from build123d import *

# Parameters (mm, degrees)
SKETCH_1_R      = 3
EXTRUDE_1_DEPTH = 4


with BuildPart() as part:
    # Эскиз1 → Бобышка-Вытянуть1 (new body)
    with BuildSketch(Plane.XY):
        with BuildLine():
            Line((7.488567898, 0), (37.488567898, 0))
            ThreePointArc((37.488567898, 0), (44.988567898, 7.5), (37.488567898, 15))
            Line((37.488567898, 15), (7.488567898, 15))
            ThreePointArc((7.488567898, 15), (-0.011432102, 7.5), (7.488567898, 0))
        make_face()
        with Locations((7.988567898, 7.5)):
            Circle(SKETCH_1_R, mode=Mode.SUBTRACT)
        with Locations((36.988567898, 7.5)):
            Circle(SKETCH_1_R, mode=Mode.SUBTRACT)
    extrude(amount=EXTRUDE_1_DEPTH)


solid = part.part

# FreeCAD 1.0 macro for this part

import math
import FreeCAD as App
import Part
import Sketcher

V = App.Vector
Q = App.Units.Quantity

doc = App.newDocument("Part")
body = doc.addObject("PartDesign::Body", "Body")

# Sketch on XY plane
sketch1 = body.newObject("Sketcher::SketchObject", "Sketch")
sketch1.AttachmentSupport = (doc.getObject("XY_Plane"), [""])
sketch1.MapMode = "FlatFace"
sketch1.addGeometry([
    Part.LineSegment(V(7.488568, 0, 0), V(37.488568, 0, 0)),  # 0
    Part.ArcOfCircle(Part.Circle(V(37.488568, 7.5, 0), V(0, 0, 1), 7.5), math.radians(-90), math.radians(90)),  # 1
    Part.LineSegment(V(37.488568, 15, 0), V(7.488568, 15, 0)),  # 2
    Part.ArcOfCircle(Part.Circle(V(7.488568, 7.5, 0), V(0, 0, 1), 7.5), math.radians(90), math.radians(270)),  # 3
    Part.Circle(V(7.988568, 7.5, 0), V(0, 0, 1), 3),  # 4
    Part.Circle(V(36.988568, 7.5, 0), V(0, 0, 1), 3),  # 5
], False)
sketch1.addConstraint([
    Sketcher.Constraint("Tangent", 0, 2, 1, 1),
    Sketcher.Constraint("Tangent", 1, 2, 2, 1),
    Sketcher.Constraint("Tangent", 2, 2, 3, 1),
    Sketcher.Constraint("Tangent", 3, 2, 0, 1),
    Sketcher.Constraint("Horizontal", 0),
    Sketcher.Constraint("Horizontal", 2),
    Sketcher.Constraint("Equal", 4, 5),
    Sketcher.Constraint("PointOnObject", 0, 2, -1),
    Sketcher.Constraint("Horizontal", 3, 3, 4, 3),
    Sketcher.Constraint("Horizontal", 4, 3, 5, 3),
    Sketcher.Constraint("Diameter", 4, Q("6 mm")),
    Sketcher.Constraint("Radius", 1, Q("7.5 mm")),
    Sketcher.Constraint("DistanceX", 0, 1, 0, 2, Q("30 mm")),
    Sketcher.Constraint("DistanceX", 4, 3, 5, 3, Q("29 mm")),
    Sketcher.Constraint("DistanceX", 3, 3, 4, 3, Q("0.5 mm")),
    Sketcher.Constraint("DistanceX", -1, 1, 1, 3, Q("37.488568 mm")),
])
pad1 = body.newObject("PartDesign::Pad", "Pad")
pad1.Profile = sketch1
pad1.Length = 4

doc.recompute()
